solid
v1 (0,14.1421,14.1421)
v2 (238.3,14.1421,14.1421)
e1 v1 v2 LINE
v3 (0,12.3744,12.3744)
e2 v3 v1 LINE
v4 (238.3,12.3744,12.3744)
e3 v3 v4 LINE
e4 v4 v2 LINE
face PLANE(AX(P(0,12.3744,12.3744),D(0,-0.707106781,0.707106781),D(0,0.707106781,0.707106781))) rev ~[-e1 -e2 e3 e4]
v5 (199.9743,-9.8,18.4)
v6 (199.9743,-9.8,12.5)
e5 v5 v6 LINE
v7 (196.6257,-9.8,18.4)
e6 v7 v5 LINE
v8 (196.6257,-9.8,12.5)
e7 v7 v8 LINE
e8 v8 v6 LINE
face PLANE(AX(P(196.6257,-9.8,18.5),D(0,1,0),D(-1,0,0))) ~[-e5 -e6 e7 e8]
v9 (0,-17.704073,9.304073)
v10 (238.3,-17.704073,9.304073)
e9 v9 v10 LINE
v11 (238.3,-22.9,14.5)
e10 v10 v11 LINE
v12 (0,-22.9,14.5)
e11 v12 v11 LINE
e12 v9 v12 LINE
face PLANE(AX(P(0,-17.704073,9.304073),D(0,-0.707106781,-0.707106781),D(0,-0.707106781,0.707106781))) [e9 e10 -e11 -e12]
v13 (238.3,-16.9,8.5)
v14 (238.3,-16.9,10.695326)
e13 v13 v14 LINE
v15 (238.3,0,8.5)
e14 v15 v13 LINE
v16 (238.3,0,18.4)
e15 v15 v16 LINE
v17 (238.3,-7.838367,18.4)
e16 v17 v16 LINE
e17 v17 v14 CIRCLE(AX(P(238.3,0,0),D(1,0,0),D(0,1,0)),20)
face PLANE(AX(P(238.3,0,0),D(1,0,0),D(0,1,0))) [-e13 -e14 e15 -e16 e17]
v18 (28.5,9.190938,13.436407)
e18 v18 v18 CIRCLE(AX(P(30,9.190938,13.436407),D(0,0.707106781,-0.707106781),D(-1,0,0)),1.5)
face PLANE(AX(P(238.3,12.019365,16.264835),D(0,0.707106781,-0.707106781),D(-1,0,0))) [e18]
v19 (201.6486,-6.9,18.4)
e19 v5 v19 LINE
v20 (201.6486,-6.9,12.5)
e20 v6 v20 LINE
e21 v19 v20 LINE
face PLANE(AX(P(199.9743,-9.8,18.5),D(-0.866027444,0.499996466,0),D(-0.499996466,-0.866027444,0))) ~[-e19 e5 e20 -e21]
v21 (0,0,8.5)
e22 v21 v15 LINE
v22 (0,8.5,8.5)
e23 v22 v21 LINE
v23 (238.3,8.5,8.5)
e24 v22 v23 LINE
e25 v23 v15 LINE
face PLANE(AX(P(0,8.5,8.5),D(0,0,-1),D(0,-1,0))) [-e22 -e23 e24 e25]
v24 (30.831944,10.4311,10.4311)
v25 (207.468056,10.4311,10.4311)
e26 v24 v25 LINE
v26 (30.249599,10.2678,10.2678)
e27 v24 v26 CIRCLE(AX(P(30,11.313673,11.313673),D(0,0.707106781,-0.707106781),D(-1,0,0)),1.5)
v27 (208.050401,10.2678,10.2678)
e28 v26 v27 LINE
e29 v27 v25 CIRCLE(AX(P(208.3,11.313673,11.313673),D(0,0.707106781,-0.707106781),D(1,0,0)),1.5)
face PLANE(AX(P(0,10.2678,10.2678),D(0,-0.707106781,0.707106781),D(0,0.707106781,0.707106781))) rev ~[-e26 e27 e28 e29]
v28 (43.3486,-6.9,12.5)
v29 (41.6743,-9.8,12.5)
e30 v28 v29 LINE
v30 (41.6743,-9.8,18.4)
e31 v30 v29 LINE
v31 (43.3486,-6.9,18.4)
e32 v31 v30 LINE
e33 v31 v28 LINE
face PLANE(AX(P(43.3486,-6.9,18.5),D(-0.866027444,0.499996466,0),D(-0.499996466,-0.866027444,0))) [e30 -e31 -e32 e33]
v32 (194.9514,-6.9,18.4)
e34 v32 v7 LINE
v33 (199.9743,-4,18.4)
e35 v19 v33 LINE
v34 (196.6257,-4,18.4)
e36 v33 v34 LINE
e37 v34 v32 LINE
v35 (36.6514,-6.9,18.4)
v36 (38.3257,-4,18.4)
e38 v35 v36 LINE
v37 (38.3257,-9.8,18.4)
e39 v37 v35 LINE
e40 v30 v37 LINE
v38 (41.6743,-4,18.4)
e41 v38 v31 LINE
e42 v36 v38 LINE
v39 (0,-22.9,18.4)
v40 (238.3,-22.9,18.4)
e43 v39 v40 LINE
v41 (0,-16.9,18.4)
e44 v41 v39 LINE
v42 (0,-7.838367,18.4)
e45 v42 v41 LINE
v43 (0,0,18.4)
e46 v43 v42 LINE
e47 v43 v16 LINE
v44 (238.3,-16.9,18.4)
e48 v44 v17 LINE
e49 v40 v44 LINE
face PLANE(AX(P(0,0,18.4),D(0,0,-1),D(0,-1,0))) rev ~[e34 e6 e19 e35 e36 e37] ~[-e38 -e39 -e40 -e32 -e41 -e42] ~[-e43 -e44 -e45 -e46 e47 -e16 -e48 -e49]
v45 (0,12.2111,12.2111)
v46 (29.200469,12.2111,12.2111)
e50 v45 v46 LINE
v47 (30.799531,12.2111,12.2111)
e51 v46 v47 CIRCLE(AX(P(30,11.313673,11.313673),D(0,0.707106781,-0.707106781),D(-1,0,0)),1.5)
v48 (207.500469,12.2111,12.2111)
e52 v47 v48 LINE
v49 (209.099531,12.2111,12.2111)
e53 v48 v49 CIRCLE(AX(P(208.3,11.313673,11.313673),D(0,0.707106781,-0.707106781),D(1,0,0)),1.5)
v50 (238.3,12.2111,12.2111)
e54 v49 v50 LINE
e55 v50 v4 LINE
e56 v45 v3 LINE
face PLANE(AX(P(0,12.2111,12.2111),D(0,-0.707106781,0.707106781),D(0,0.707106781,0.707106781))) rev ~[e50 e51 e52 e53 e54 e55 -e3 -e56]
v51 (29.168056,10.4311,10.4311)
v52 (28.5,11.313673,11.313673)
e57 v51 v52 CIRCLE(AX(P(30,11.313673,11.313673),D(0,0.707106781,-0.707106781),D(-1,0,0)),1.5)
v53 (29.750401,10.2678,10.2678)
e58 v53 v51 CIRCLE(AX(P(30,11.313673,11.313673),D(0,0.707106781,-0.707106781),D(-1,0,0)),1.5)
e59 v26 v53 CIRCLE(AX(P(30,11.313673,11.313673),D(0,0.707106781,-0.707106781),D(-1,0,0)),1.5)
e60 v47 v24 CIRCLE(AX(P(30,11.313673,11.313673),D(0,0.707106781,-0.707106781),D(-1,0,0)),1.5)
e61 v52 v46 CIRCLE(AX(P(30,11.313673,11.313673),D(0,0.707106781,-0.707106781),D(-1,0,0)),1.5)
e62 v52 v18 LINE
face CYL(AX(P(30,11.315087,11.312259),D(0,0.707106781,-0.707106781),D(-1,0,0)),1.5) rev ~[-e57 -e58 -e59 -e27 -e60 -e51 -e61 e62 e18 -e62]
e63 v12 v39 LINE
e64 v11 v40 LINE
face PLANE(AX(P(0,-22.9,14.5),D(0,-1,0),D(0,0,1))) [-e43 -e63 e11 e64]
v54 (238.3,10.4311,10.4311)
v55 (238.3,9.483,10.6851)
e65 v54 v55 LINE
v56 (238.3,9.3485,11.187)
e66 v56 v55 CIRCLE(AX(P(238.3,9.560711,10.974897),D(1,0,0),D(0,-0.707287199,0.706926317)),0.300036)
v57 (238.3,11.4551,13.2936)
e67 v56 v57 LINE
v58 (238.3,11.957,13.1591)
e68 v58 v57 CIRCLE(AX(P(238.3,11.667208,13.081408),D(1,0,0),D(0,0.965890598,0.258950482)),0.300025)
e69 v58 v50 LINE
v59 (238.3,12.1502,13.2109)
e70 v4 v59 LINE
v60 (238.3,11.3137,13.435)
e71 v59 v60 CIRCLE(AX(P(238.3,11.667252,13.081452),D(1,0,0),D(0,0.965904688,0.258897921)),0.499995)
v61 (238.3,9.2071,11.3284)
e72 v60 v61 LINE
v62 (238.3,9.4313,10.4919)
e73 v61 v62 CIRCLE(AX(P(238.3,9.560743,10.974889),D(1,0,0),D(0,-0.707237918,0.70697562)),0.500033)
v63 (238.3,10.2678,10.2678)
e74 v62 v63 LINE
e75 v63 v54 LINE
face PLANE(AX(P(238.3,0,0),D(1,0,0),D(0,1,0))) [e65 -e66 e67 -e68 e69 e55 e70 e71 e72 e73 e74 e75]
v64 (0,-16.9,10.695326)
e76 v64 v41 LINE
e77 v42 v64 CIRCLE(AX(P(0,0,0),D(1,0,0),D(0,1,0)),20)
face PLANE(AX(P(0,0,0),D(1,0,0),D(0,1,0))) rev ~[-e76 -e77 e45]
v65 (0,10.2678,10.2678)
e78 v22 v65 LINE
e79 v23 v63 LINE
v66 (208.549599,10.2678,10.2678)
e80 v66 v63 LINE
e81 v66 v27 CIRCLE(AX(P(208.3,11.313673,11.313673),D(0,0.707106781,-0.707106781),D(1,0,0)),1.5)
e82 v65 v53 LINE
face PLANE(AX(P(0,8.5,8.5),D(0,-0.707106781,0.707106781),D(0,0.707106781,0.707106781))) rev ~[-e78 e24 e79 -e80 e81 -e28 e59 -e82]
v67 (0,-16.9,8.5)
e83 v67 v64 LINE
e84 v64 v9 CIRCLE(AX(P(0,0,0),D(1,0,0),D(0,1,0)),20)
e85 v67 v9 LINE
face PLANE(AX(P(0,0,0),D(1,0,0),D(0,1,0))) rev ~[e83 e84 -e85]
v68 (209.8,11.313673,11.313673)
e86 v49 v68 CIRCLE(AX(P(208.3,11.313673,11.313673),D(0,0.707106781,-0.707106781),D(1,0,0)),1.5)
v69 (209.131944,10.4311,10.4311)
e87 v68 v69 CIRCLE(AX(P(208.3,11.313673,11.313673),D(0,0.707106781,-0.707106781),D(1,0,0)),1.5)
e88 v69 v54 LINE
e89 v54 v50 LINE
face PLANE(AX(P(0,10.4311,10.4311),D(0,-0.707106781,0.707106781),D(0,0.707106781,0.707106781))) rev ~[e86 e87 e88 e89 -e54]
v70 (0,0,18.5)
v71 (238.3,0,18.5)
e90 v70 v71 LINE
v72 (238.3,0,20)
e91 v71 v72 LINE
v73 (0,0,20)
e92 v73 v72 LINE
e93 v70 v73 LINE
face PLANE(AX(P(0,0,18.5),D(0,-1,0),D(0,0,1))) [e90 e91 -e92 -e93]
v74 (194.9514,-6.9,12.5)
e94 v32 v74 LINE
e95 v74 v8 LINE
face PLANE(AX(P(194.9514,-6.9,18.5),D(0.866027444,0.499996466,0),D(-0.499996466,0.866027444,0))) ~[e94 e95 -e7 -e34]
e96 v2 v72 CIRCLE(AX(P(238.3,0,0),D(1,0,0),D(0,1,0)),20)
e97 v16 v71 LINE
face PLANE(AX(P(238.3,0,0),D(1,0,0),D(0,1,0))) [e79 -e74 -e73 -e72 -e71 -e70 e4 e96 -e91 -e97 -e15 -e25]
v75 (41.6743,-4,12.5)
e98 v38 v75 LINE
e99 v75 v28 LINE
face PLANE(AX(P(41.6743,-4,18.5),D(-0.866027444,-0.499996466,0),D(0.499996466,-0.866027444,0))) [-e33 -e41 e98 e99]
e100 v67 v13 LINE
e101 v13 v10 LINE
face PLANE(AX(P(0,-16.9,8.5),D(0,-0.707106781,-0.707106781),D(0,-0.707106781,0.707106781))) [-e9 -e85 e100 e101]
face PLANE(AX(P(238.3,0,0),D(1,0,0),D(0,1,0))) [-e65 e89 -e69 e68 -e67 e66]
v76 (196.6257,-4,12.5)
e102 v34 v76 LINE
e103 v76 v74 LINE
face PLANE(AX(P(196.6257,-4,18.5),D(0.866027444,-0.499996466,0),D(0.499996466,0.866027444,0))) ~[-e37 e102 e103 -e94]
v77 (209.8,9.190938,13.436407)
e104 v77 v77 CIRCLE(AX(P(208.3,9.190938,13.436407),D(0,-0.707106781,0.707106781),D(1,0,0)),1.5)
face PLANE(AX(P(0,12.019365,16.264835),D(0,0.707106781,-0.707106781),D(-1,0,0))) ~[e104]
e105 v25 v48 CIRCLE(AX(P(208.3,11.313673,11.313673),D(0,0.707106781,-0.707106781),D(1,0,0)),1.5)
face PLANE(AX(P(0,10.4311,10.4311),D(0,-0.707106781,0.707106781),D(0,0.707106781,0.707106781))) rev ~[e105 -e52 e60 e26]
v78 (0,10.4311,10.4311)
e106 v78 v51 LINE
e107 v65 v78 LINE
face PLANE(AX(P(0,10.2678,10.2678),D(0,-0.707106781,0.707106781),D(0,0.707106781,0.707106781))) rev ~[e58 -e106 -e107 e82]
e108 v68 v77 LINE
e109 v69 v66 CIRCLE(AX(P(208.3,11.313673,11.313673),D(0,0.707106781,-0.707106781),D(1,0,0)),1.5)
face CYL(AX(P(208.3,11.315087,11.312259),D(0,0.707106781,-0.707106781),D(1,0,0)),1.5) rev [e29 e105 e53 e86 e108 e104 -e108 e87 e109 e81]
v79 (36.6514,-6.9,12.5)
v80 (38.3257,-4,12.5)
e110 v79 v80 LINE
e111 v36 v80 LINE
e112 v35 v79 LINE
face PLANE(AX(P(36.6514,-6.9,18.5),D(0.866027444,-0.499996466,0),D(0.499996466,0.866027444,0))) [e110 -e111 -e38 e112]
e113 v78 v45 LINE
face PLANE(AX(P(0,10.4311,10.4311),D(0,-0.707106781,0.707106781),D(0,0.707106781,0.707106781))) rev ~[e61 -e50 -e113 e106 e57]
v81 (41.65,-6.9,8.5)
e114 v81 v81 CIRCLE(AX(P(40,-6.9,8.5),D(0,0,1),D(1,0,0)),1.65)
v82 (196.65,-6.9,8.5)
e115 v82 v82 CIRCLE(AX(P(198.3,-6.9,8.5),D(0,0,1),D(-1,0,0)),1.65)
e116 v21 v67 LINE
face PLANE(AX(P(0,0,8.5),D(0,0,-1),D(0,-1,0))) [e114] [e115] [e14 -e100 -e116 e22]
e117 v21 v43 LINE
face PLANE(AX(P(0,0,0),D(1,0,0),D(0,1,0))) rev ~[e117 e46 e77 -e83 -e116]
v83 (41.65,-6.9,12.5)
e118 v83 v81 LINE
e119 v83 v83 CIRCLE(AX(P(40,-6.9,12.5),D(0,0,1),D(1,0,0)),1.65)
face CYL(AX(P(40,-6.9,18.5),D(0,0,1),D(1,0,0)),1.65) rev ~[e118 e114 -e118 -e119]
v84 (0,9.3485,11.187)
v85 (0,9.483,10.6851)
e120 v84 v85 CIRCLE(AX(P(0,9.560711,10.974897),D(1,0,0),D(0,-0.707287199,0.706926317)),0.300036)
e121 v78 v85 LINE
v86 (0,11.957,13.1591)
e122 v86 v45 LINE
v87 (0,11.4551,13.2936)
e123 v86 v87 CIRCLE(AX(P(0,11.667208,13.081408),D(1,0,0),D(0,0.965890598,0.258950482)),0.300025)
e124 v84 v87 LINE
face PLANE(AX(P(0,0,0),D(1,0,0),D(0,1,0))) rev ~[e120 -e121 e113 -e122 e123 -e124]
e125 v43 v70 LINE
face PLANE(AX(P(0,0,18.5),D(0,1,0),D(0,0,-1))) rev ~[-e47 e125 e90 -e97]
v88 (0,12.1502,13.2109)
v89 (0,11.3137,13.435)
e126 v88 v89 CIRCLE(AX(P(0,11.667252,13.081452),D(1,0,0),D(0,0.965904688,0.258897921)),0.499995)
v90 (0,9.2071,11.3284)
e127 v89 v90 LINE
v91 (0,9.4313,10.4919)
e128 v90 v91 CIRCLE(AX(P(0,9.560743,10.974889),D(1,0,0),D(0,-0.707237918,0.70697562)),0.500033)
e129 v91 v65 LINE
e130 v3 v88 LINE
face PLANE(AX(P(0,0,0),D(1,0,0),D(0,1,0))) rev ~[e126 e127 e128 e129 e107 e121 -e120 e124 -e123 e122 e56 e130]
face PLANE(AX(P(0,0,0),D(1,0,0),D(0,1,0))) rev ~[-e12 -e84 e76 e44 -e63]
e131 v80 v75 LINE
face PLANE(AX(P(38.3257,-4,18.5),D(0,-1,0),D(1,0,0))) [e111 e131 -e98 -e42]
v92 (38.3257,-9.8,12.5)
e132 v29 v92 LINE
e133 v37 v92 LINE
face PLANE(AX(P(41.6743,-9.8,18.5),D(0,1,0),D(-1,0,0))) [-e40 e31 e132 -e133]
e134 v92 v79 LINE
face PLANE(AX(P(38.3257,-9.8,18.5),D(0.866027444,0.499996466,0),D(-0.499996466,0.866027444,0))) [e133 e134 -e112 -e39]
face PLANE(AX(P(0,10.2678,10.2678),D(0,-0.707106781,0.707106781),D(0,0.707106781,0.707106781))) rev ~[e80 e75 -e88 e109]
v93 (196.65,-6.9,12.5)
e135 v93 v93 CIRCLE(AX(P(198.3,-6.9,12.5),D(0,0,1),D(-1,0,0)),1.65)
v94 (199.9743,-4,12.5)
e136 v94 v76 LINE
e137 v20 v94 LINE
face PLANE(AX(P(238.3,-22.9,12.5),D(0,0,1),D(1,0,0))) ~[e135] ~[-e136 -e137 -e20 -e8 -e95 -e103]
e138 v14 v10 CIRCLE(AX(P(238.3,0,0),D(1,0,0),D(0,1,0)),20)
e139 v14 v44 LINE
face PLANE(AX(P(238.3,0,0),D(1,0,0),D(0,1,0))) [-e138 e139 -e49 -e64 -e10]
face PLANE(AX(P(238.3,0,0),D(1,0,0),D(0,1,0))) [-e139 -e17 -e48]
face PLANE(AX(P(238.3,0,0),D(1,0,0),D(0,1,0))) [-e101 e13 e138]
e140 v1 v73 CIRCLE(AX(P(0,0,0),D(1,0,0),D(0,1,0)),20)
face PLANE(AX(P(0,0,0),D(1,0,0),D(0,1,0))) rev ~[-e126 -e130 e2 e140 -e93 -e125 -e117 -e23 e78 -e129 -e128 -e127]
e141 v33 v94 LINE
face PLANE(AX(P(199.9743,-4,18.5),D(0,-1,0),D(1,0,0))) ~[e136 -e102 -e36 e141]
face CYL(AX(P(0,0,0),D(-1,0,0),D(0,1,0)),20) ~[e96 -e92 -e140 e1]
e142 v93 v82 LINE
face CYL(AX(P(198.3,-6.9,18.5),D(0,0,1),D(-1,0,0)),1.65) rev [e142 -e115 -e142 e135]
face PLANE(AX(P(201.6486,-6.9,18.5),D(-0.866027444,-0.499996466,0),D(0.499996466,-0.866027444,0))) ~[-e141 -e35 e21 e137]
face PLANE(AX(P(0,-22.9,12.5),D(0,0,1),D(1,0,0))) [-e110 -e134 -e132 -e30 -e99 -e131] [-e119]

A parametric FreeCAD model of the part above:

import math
import FreeCAD as App
import Part
import Sketcher
Q = App.Units.Quantity


def add_polygon(sketch, points):
    """Adds a closed chain of lines whose ends are joined by coincident constraints."""
    first, n = sketch.GeometryCount, len(points)
    for a, b in zip(points, points[1:] + points[:1]):
        sketch.addGeometry(Part.LineSegment(App.Vector(*a, 0), App.Vector(*b, 0)), False)
    for i in range(n):
        sketch.addConstraint(Sketcher.Constraint("Coincident", first + i, 2, first + (i + 1) % n, 1))

doc = App.newDocument("Part")
body = doc.addObject("PartDesign::Body", "Body")

# Sketch on YZ plane
sketch1 = body.newObject("Sketcher::SketchObject", "Sketch")
sketch1.AttachmentSupport = (doc.getObject("YZ_Plane"), [""])
sketch1.MapMode = "FlatFace"
sketch1.addGeometry(Part.ArcOfCircle(Part.Circle(App.Vector(0, 0, 0), App.Vector(0, 0, 1), 20), math.radians(45), math.radians(90)), False)
sketch1.addGeometry(Part.LineSegment(App.Vector(0, 20, 0), App.Vector(0, 18.5, 0)), False)
sketch1.addGeometry(Part.LineSegment(App.Vector(0, 18.5, 0), App.Vector(-22.9, 18.5, 0)), False)
sketch1.addGeometry(Part.LineSegment(App.Vector(-22.9, 18.5, 0), App.Vector(-22.9, 14.5, 0)), False)
sketch1.addGeometry(Part.LineSegment(App.Vector(-22.9, 14.5, 0), App.Vector(-16.9, 8.5, 0)), False)
sketch1.addGeometry(Part.LineSegment(App.Vector(-16.9, 8.5, 0), App.Vector(8.5, 8.5, 0)), False)
sketch1.addGeometry(Part.LineSegment(App.Vector(8.5, 8.5, 0), App.Vector(14.1, 14.1, 0)), False)
sketch1.addConstraint(Sketcher.Constraint("Coincident", 0, 2, 1, 1))
sketch1.addConstraint(Sketcher.Constraint("Coincident", 1, 2, 2, 1))
sketch1.addConstraint(Sketcher.Constraint("Coincident", 2, 2, 3, 1))
sketch1.addConstraint(Sketcher.Constraint("Coincident", 3, 2, 4, 1))
sketch1.addConstraint(Sketcher.Constraint("Coincident", 4, 2, 5, 1))
sketch1.addConstraint(Sketcher.Constraint("Coincident", 5, 2, 6, 1))
sketch1.addConstraint(Sketcher.Constraint("Coincident", 6, 2, 0, 1))
sketch1.addConstraint(Sketcher.Constraint("Vertical", 1))
sketch1.addConstraint(Sketcher.Constraint("Horizontal", 2))
sketch1.addConstraint(Sketcher.Constraint("Vertical", 3))
sketch1.addConstraint(Sketcher.Constraint("Horizontal", 5))
sketch1.addConstraint(Sketcher.Constraint("Coincident", 0, 3, -1, 1))
sketch1.addConstraint(Sketcher.Constraint("PointOnObject", 0, 2, -2))
sketch1.addConstraint(Sketcher.Constraint("Perpendicular", 4, 6))
sketch1.addConstraint(Sketcher.Constraint("Radius", 0, 20.0))
sketch1.addConstraint(Sketcher.Constraint("DistanceY", 3, 2, 3, 1, 4.0))
sketch1.addConstraint(Sketcher.Constraint("Angle", 4, Q("-45 deg")))
sketch1.addConstraint(Sketcher.Constraint("DistanceX", 5, 1, 5, 2, 25.4))
sketch1.addConstraint(Sketcher.Constraint("DistanceY", 1, 2, 1, 1, 1.5))
sketch1.addConstraint(Sketcher.Constraint("DistanceY", 4, 2, 2, 2, 10.0))
sketch1.addConstraint(Sketcher.Constraint("DistanceX", 2, 2, 2, 1, 22.9))
pad1 = body.newObject("PartDesign::Pad", "Pad")
pad1.Profile = sketch1
pad1.Length = 238.3

# Sketch on XY plane
sketch2 = body.newObject("Sketcher::SketchObject", "Sketch001")
sketch2.AttachmentSupport = (doc.getObject("XY_Plane"), [""])
sketch2.MapMode = "FlatFace"
sketch2.AttachmentOffset = App.Placement(App.Vector(0, 0, 18.5), App.Rotation())
add_polygon(sketch2, [(36.7, -6.9), (38.3, -9.8), (41.7, -9.8), (43.3, -6.9), (41.7, -4), (38.3, -4)])  # lines 0-5
sketch2.addConstraint(Sketcher.Constraint("Horizontal", 1))
sketch2.addConstraint(Sketcher.Constraint("Horizontal", 4))
sketch2.addConstraint(Sketcher.Constraint("Parallel", 0, 3))
sketch2.addConstraint(Sketcher.Constraint("Parallel", 2, 5))
sketch2.addConstraint(Sketcher.Constraint("Horizontal", 2, 2, 5, 2))
sketch2.addConstraint(Sketcher.Constraint("Vertical", 1, 2, 3, 2))
sketch2.addConstraint(Sketcher.Constraint("Vertical", 0, 2, 4, 2))
sketch2.addConstraint(Sketcher.Constraint("DistanceY", 1, 2, 3, 2, 5.8))
sketch2.addConstraint(Sketcher.Constraint("Angle", 0, Q("-60.0002 deg")))
sketch2.addConstraint(Sketcher.Constraint("DistanceY", 3, 2, -1, 1, 4.0))
sketch2.addConstraint(Sketcher.Constraint("DistanceX", 1, 1, 1, 2, 3.3486))
sketch2.addConstraint(Sketcher.Constraint("DistanceX", -1, 1, 0, 2, 38.3257))
pocket1 = body.newObject("PartDesign::Pocket", "Pocket")
pocket1.Profile = sketch2
pocket1.Length = 6

# Sketch on XY plane
sketch3 = body.newObject("Sketcher::SketchObject", "Sketch002")
sketch3.AttachmentSupport = (doc.getObject("XY_Plane"), [""])
sketch3.MapMode = "FlatFace"
sketch3.AttachmentOffset = App.Placement(App.Vector(0, 0, 18.5), App.Rotation())
sketch3.addGeometry(Part.Circle(App.Vector(40, -6.9, 0), App.Vector(0, 0, 1), 1.6), False)
sketch3.addConstraint(Sketcher.Constraint("Diameter", 0, 3.3))
sketch3.addConstraint(Sketcher.Constraint("DistanceX", -1, 1, 0, 3, 40.0))
sketch3.addConstraint(Sketcher.Constraint("DistanceY", 0, 3, -1, 1, 6.9))
pocket2 = body.newObject("PartDesign::Pocket", "Pocket001")
pocket2.Profile = sketch3
pocket2.Type = "ThroughAll"

# Sketch on an angled plane
sketch4 = body.newObject("Sketcher::SketchObject", "Sketch003")
sketch4.Placement = App.Placement(App.Vector(238.3, 14.1421, 14.1421), App.Rotation(App.Vector(-1, 0, 0), App.Vector(0, 0.707106781, 0.707106781), App.Vector(0, 0.707106781, -0.707106781), "ZXY"))
sketch4.addGeometry(Part.Circle(App.Vector(208.3, -4, 0), App.Vector(0, 0, 1), 1.5), False)
sketch4.addConstraint(Sketcher.Constraint("Diameter", 0, 3.0))
sketch4.addConstraint(Sketcher.Constraint("DistanceY", 0, 3, -1, 1, 4.0))
sketch4.addConstraint(Sketcher.Constraint("DistanceX", -1, 1, 0, 3, 208.3))
pocket3 = body.newObject("PartDesign::Pocket", "Pocket002")
pocket3.Profile = sketch4
pocket3.Length = 3
doc.recompute()

datumplane = body.newObject("PartDesign::Plane", "DatumPlane")
datumplane.AttachmentSupport = (doc.getObject("YZ_Plane"), [""])
datumplane.MapMode = "FlatFace"
datumplane.AttachmentOffset = App.Placement(App.Vector(0, 0, 119.15), App.Rotation())
mirrored = body.newObject("PartDesign::Mirrored", "Mirrored")
mirrored.Originals = [pocket3, pocket1, pocket2]
mirrored.MirrorPlane = (datumplane, [""])
body.Tip = mirrored

# Sketch on YZ plane
sketch5 = body.newObject("Sketcher::SketchObject", "Sketch004")
sketch5.AttachmentSupport = (doc.getObject("YZ_Plane"), [""])
sketch5.MapMode = "FlatFace"
add_polygon(sketch5, [(0, 18.4), (-22.9, 18.4), (-22.9, 18.5), (0, 18.5)])  # lines 0-3
sketch5.addConstraint(Sketcher.Constraint("Horizontal", 0))
sketch5.addConstraint(Sketcher.Constraint("Vertical", 1))
sketch5.addConstraint(Sketcher.Constraint("Horizontal", 2))
sketch5.addConstraint(Sketcher.Constraint("Vertical", 3))
sketch5.addConstraint(Sketcher.Constraint("PointOnObject", 2, 2, -2))
sketch5.addConstraint(Sketcher.Constraint("DistanceY", 1, 1, 1, 2, 0.1))
sketch5.addConstraint(Sketcher.Constraint("DistanceX", 0, 2, 0, 1, 22.9))
sketch5.addConstraint(Sketcher.Constraint("DistanceY", -1, 1, 0, 2, 18.4))
pocket4 = body.newObject("PartDesign::Pocket", "Pocket003")
pocket4.Profile = sketch5
pocket4.Type = "ThroughAll"
pocket4.Reversed = True

doc.recompute()
